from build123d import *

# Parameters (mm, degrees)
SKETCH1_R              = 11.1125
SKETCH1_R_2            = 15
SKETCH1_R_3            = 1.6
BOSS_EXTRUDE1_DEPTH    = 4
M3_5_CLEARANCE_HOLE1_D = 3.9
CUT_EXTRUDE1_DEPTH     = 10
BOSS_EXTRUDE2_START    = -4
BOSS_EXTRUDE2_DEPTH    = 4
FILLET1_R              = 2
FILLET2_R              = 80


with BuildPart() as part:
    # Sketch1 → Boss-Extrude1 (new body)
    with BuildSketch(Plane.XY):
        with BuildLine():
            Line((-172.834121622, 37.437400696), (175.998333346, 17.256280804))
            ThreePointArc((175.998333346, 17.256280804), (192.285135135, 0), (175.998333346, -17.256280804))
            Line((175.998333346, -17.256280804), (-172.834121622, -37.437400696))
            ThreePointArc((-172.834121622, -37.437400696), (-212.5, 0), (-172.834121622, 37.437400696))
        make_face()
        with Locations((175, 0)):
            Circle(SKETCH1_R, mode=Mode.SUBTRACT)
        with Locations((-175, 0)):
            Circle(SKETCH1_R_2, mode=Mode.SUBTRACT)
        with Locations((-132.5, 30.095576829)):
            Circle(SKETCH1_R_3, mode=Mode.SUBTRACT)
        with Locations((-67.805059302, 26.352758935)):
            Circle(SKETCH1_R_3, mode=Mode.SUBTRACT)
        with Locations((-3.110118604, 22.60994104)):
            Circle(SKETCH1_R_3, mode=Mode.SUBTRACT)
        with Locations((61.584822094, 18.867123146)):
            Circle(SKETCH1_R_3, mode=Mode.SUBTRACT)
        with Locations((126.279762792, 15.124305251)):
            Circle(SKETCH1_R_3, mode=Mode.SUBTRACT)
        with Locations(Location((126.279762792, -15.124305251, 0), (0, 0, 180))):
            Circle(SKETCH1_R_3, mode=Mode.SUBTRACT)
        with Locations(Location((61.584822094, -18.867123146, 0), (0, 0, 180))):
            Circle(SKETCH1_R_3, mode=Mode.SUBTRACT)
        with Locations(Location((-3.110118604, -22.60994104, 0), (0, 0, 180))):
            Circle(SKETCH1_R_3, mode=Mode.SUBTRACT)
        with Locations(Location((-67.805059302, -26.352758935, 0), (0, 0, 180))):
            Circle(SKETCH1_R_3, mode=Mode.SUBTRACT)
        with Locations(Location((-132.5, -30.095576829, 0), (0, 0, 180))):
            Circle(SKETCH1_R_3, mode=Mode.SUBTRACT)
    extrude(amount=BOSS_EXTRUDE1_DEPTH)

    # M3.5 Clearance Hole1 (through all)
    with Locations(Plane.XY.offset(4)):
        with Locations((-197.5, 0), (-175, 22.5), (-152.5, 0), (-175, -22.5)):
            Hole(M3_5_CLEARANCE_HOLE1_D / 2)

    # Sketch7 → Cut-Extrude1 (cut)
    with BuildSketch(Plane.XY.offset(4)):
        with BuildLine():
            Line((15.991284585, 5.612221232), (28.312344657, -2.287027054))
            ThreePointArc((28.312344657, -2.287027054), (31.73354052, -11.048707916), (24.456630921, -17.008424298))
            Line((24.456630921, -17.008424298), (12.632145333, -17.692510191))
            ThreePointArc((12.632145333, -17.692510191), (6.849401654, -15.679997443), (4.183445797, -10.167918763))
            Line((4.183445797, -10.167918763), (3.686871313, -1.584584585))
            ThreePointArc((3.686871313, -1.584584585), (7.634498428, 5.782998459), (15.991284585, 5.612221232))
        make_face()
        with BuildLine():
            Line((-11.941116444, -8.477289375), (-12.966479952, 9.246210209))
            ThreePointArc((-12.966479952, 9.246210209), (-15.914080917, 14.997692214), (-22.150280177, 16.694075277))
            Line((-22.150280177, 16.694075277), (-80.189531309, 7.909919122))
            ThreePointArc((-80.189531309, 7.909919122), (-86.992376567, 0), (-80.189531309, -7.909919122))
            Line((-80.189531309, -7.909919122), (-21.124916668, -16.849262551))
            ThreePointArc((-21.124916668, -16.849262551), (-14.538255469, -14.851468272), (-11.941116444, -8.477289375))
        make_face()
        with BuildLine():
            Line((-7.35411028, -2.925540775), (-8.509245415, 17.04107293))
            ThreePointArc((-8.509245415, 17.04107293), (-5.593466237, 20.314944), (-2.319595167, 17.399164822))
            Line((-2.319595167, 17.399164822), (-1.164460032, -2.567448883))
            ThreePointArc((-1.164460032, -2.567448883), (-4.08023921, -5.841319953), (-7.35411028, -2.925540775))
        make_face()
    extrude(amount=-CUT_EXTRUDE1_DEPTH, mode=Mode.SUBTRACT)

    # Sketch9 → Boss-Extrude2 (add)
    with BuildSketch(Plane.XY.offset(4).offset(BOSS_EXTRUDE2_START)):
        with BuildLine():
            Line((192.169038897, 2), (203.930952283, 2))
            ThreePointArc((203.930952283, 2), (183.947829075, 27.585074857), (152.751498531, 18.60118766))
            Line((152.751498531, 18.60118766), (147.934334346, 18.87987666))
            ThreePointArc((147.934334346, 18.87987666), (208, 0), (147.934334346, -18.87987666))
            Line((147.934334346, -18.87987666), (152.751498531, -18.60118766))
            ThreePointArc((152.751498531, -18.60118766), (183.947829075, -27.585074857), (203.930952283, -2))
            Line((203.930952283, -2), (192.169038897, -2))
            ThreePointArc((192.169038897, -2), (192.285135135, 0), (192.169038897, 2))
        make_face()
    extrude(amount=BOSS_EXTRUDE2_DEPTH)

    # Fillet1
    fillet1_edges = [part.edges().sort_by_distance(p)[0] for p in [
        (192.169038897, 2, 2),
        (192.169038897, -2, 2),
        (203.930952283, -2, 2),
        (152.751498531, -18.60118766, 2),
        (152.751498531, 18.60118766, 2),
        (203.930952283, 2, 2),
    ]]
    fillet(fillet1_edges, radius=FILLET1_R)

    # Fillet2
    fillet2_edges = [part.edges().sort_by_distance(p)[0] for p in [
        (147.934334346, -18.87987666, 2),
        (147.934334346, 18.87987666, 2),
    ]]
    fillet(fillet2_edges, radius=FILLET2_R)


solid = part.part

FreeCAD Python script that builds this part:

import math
import FreeCAD as App
import Part
import Sketcher
Q = App.Units.Quantity


def edges_at(feature, points):
    """Names of the edges that pass closest to the given points."""
    edges = feature.Shape.Edges
    near = lambda p: min(range(len(edges)), key=lambda i: edges[i].distToShape(Part.Vertex(*p))[0])
    return sorted({f"Edge{near(p) + 1}" for p in points})

doc = App.newDocument("Part")
body = doc.addObject("PartDesign::Body", "Body")

# Sketch on XY plane
sketch1 = body.newObject("Sketcher::SketchObject", "Sketch")
sketch1.AttachmentSupport = (doc.getObject("XY_Plane"), [""])
sketch1.MapMode = "FlatFace"
sketch1.addGeometry([
    Part.LineSegment(App.Vector(176, 17.3, 0), App.Vector(-172.8, 37.4, 0)),  # 0
    Part.ArcOfCircle(Part.Circle(App.Vector(-175, 0, 0), App.Vector(0, 0, 1), 37.5), math.radians(87), math.radians(273)),  # 1
    Part.LineSegment(App.Vector(-172.8, -37.4, 0), App.Vector(176, -17.3, 0)),  # 2
    Part.ArcOfCircle(Part.Circle(App.Vector(175, 0, 0), App.Vector(0, 0, 1), 17.3), math.radians(-87), math.radians(87)),  # 3
    Part.Circle(App.Vector(61.6, -18.9, 0), App.Vector(0, 0, 1), 1.6),  # 4
    Part.Circle(App.Vector(126.3, -15.1, 0), App.Vector(0, 0, 1), 1.6),  # 5
    Part.Circle(App.Vector(-67.8, -26.4, 0), App.Vector(0, 0, 1), 1.6),  # 6
    Part.Circle(App.Vector(-3.1, -22.6, 0), App.Vector(0, 0, 1), 1.6),  # 7
    Part.Circle(App.Vector(-132.5, -30.1, 0), App.Vector(0, 0, 1), 1.6),  # 8
    Part.Circle(App.Vector(175, 0, 0), App.Vector(0, 0, 1), 11.1),  # 9
    Part.Circle(App.Vector(126.3, 15.1, 0), App.Vector(0, 0, 1), 1.6),  # 10
    Part.Circle(App.Vector(61.6, 18.9, 0), App.Vector(0, 0, 1), 1.6),  # 11
    Part.Circle(App.Vector(-175, 0, 0), App.Vector(0, 0, 1), 15),  # 12
    Part.Circle(App.Vector(-3.1, 22.6, 0), App.Vector(0, 0, 1), 1.6),  # 13
    Part.Circle(App.Vector(-67.8, 26.4, 0), App.Vector(0, 0, 1), 1.6),  # 14
    Part.Circle(App.Vector(-132.5, 30.1, 0), App.Vector(0, 0, 1), 1.6),  # 15
], False)
sketch1.addConstraint([
    Sketcher.Constraint("Tangent", 0, 2, 1, 1),
    Sketcher.Constraint("Tangent", 1, 2, 2, 1),
    Sketcher.Constraint("Tangent", 2, 2, 3, 1),
    Sketcher.Constraint("Tangent", 3, 2, 0, 1),
    Sketcher.Constraint("Coincident", 9, 3, 3, 3),
    Sketcher.Constraint("Coincident", 12, 3, 1, 3),
    Sketcher.Constraint("Equal", 4, 5),
    Sketcher.Constraint("Equal", 5, 6),
    Sketcher.Constraint("Equal", 6, 7),
    Sketcher.Constraint("Equal", 7, 8),
    Sketcher.Constraint("Equal", 8, 10),
    Sketcher.Constraint("Equal", 10, 11),
    Sketcher.Constraint("Equal", 11, 13),
    Sketcher.Constraint("Equal", 13, 14),
    Sketcher.Constraint("Equal", 14, 15),
    Sketcher.Constraint("Symmetric", 1, 3, 3, 3, -1, 1),
    Sketcher.Constraint("Symmetric", 5, 3, 10, 3, -1),
    Sketcher.Constraint("Symmetric", 4, 3, 11, 3, -1),
    Sketcher.Constraint("Symmetric", 7, 3, 13, 3, -1),
    Sketcher.Constraint("Symmetric", 6, 3, 14, 3, -1),
    Sketcher.Constraint("Symmetric", 8, 3, 15, 3, -1),
    Sketcher.Constraint("PointOnObject", 1, 3, -1),
    Sketcher.Constraint("Diameter", 12, Q("30 mm")),
    Sketcher.Constraint("Diameter", 4, Q("3.2 mm")),
    Sketcher.Constraint("Radius", 1, Q("37.5 mm")),
    Sketcher.Constraint("Diameter", 9, Q("22.225 mm")),
    Sketcher.Constraint("DistanceX", 1, 3, -1, 1, Q("175 mm")),
    Sketcher.Constraint("DistanceX", 8, 3, -1, 1, Q("132.5 mm")),
    Sketcher.Constraint("Radius", 3, Q("17.285135 mm")),
    Sketcher.Constraint("DistanceY", 6, 3, 13, 3, Q("48.9627 mm")),
    Sketcher.Constraint("DistanceX", 6, 3, -1, 1, Q("67.805059 mm")),
    Sketcher.Constraint("DistanceY", 6, 3, -1, 1, Q("26.352759 mm")),
    Sketcher.Constraint("DistanceX", 7, 3, -1, 1, Q("3.110119 mm")),
    Sketcher.Constraint("DistanceX", 4, 3, 5, 3, Q("64.694941 mm")),
    Sketcher.Constraint("DistanceX", 6, 3, 4, 3, Q("129.389881 mm")),
    Sketcher.Constraint("DistanceY", 8, 3, 5, 3, Q("14.971272 mm")),
    Sketcher.Constraint("DistanceY", 5, 3, 10, 3, Q("30.248611 mm")),
    Sketcher.Constraint("DistanceY", 4, 3, 10, 3, Q("33.991428 mm")),
])
pad1 = body.newObject("PartDesign::Pad", "Pad")
pad1.Profile = sketch1
pad1.Length = 4

# Sketch on XY plane
sketch2 = body.newObject("Sketcher::SketchObject", "Sketch001")
sketch2.AttachmentSupport = (doc.getObject("XY_Plane"), [""])
sketch2.MapMode = "FlatFace"
sketch2.AttachmentOffset = App.Placement(App.Vector(0, 0, 4), App.Rotation())
sketch2.addGeometry([
    Part.Circle(App.Vector(-197.5, 0, 0), App.Vector(0, 0, 1), 1.9),
    Part.Circle(App.Vector(-175, 22.5, 0), App.Vector(0, 0, 1), 1.9),
    Part.Circle(App.Vector(-152.5, 0, 0), App.Vector(0, 0, 1), 1.9),
    Part.Circle(App.Vector(-175, -22.5, 0), App.Vector(0, 0, 1), 1.9),
], False)
sketch2.addConstraint([
    Sketcher.Constraint("Equal", 0, 1),
    Sketcher.Constraint("Equal", 1, 2),
    Sketcher.Constraint("Equal", 2, 3),
    Sketcher.Constraint("Symmetric", 1, 3, 3, 3, -1),
    Sketcher.Constraint("PointOnObject", 0, 3, -1),
    Sketcher.Constraint("PointOnObject", 2, 3, -1),
    Sketcher.Constraint("Diameter", 0, Q("3.9 mm")),
    Sketcher.Constraint("DistanceX", 1, 3, -1, 1, Q("175 mm")),
    Sketcher.Constraint("DistanceX", 0, 3, 2, 3, Q("45 mm")),
    Sketcher.Constraint("DistanceY", 3, 3, 1, 3, Q("45 mm")),
    Sketcher.Constraint("DistanceX", 0, 3, -1, 1, Q("197.5 mm")),
])
doc.recompute()
hole = body.newObject("PartDesign::Hole", "Hole")
hole.Profile = sketch2
hole.ThreadType = "None"
hole.Diameter = 3.9
hole.DepthType = "ThroughAll"

# Sketch on XY plane
sketch3 = body.newObject("Sketcher::SketchObject", "Sketch002")
sketch3.AttachmentSupport = (doc.getObject("XY_Plane"), [""])
sketch3.MapMode = "FlatFace"
sketch3.AttachmentOffset = App.Placement(App.Vector(0, 0, 4), App.Rotation())
sketch3.addGeometry([
    Part.LineSegment(App.Vector(28.3, -2.3, 0), App.Vector(16, 5.6, 0)),  # 0
    Part.ArcOfCircle(Part.Circle(App.Vector(11.7, -1.1, 0), App.Vector(0, 0, 1), 8), math.radians(57), math.radians(183)),  # 1
    Part.LineSegment(App.Vector(3.7, -1.6, 0), App.Vector(4.2, -10.2, 0)),  # 2
    Part.ArcOfCircle(Part.Circle(App.Vector(12.2, -9.7, 0), App.Vector(0, 0, 1), 8), math.radians(-177), math.radians(-87)),  # 3
    Part.LineSegment(App.Vector(12.6, -17.7, 0), App.Vector(24.5, -17, 0)),  # 4
    Part.ArcOfCircle(Part.Circle(App.Vector(24, -9, 0), App.Vector(0, 0, 1), 8), math.radians(-87), math.radians(57)),  # 5
    Part.LineSegment(App.Vector(-11.9, -8.5, 0), App.Vector(-13, 9.2, 0)),  # 6
    Part.ArcOfCircle(Part.Circle(App.Vector(-21, 8.8, 0), App.Vector(0, 0, 1), 8), math.radians(3), math.radians(99)),  # 7
    Part.LineSegment(App.Vector(-22.2, 16.7, 0), App.Vector(-80.2, 7.9, 0)),  # 8
    Part.ArcOfCircle(Part.Circle(App.Vector(-79, 0, 0), App.Vector(0, 0, 1), 8), math.radians(99), math.radians(261)),  # 9
    Part.LineSegment(App.Vector(-80.2, -7.9, 0), App.Vector(-21.1, -16.8, 0)),  # 10
    Part.ArcOfCircle(Part.Circle(App.Vector(-19.9, -8.9, 0), App.Vector(0, 0, 1), 8), math.radians(-99), math.radians(3)),  # 11
    Part.LineSegment(App.Vector(-8.5, 17, 0), App.Vector(-7.4, -2.9, 0)),  # 12
    Part.ArcOfCircle(Part.Circle(App.Vector(-4.3, -2.7, 0), App.Vector(0, 0, 1), 3.1), math.radians(-177), math.radians(3)),  # 13
    Part.LineSegment(App.Vector(-1.2, -2.6, 0), App.Vector(-2.3, 17.4, 0)),  # 14
    Part.ArcOfCircle(Part.Circle(App.Vector(-5.4, 17.2, 0), App.Vector(0, 0, 1), 3.1), math.radians(3), math.radians(183)),  # 15
], False)
sketch3.addConstraint([
    Sketcher.Constraint("Tangent", 0, 2, 1, 1),
    Sketcher.Constraint("Tangent", 1, 2, 2, 1),
    Sketcher.Constraint("Tangent", 2, 2, 3, 1),
    Sketcher.Constraint("Tangent", 3, 2, 4, 1),
    Sketcher.Constraint("Tangent", 4, 2, 5, 1),
    Sketcher.Constraint("Tangent", 5, 2, 0, 1),
    Sketcher.Constraint("Tangent", 6, 2, 7, 1),
    Sketcher.Constraint("Tangent", 7, 2, 8, 1),
    Sketcher.Constraint("Tangent", 8, 2, 9, 1),
    Sketcher.Constraint("Tangent", 9, 2, 10, 1),
    Sketcher.Constraint("Tangent", 10, 2, 11, 1),
    Sketcher.Constraint("Tangent", 11, 2, 6, 1),
    Sketcher.Constraint("Tangent", 12, 2, 13, 1),
    Sketcher.Constraint("Tangent", 13, 2, 14, 1),
    Sketcher.Constraint("Tangent", 14, 2, 15, 1),
    Sketcher.Constraint("Tangent", 15, 2, 12, 1),
    Sketcher.Constraint("Equal", 1, 3),
    Sketcher.Constraint("Equal", 3, 5),
    Sketcher.Constraint("Equal", 5, 7),
    Sketcher.Constraint("Equal", 7, 9),
    Sketcher.Constraint("Equal", 9, 11),
    Sketcher.Constraint("Equal", 13, 15),
    Sketcher.Constraint("Symmetric", 8, 2, 9, 2, -1),
    Sketcher.Constraint("Perpendicular", 2, 4),
    Sketcher.Constraint("Perpendicular", 4, 6),
    Sketcher.Constraint("Parallel", 6, 12),
    Sketcher.Constraint("Radius", 1, Q("8 mm")),
    Sketcher.Constraint("Radius", 13, Q("3.1 mm")),
    Sketcher.Constraint("Distance", 12, Q("20 mm")),
    Sketcher.Constraint("DistanceY", 5, 3, 0, 2, Q("14.634 mm")),
    Sketcher.Constraint("Distance", 0, Q("14.6358 mm")),
    Sketcher.Constraint("DistanceY", 11, 3, 7, 3, Q("17.7235 mm")),
    Sketcher.Constraint("DistanceX", 13, 3, 1, 3, Q("15.932802 mm")),
    Sketcher.Constraint("DistanceX", 2, 2, 3, 2, Q("8.4487 mm")),
    Sketcher.Constraint("DistanceX", 10, 2, 11, 2, Q("9.1838 mm")),
    Sketcher.Constraint("DistanceY", 1, 3, -1, 1, Q("1.122531 mm")),
    Sketcher.Constraint("DistanceX", -1, 1, 3, 3, Q("12.170091 mm")),
    Sketcher.Constraint("DistanceX", 11, 3, -1, 1, Q("19.927762 mm")),
    Sketcher.Constraint("DistanceY", -1, 1, 15, 3, Q("17.220119 mm")),
])
pocket1 = body.newObject("PartDesign::Pocket", "Pocket")
pocket1.Profile = sketch3
pocket1.Length = 10

# Sketch on XY plane
sketch4 = body.newObject("Sketcher::SketchObject", "Sketch003")
sketch4.AttachmentSupport = (doc.getObject("XY_Plane"), [""])
sketch4.MapMode = "FlatFace"
sketch4.addGeometry([
    Part.LineSegment(App.Vector(203.9, 2, 0), App.Vector(192.2, 2, 0)),  # 0
    Part.ArcOfCircle(Part.Circle(App.Vector(175, 0, 0), App.Vector(0, 0, 1), 17.3), math.radians(-6.64), math.radians(6.64)),  # 1
    Part.LineSegment(App.Vector(192.2, -2, 0), App.Vector(203.9, -2, 0)),  # 2
    Part.ArcOfCircle(Part.Circle(App.Vector(175, 0, 0), App.Vector(0, 0, 1), 29), math.radians(-140), math.radians(-4)),  # 3
    Part.LineSegment(App.Vector(152.8, -18.6, 0), App.Vector(147.9, -18.9, 0)),  # 4
    Part.ArcOfCircle(Part.Circle(App.Vector(175, 0, 0), App.Vector(0, 0, 1), 33), math.radians(-145), math.radians(145)),  # 5
    Part.LineSegment(App.Vector(147.9, 18.9, 0), App.Vector(152.8, 18.6, 0)),  # 6
    Part.ArcOfCircle(Part.Circle(App.Vector(175, 0, 0), App.Vector(0, 0, 1), 29), math.radians(4), math.radians(140)),  # 7
], False)
sketch4.addConstraint([
    Sketcher.Constraint("Coincident", 0, 2, 1, 2),
    Sketcher.Constraint("Coincident", 1, 1, 2, 1),
    Sketcher.Constraint("Coincident", 2, 2, 3, 2),
    Sketcher.Constraint("Coincident", 3, 1, 4, 1),
    Sketcher.Constraint("Coincident", 4, 2, 5, 1),
    Sketcher.Constraint("Coincident", 5, 2, 6, 1),
    Sketcher.Constraint("Coincident", 6, 2, 7, 2),
    Sketcher.Constraint("Coincident", 7, 1, 0, 1),
    Sketcher.Constraint("Horizontal", 0),
    Sketcher.Constraint("Horizontal", 2),
    Sketcher.Constraint("Coincident", 3, 3, 1, 3),
    Sketcher.Constraint("Coincident", 5, 3, 1, 3),
    Sketcher.Constraint("Coincident", 7, 3, 1, 3),
    Sketcher.Constraint("Equal", 3, 7),
    Sketcher.Constraint("Symmetric", 0, 2, 1, 1, -1),
    Sketcher.Constraint("Vertical", 4, 2, 5, 2),
    Sketcher.Constraint("Vertical", 3, 1, 6, 2),
    Sketcher.Constraint("Radius", 3, Q("29 mm")),
    Sketcher.Constraint("Radius", 5, Q("33 mm")),
    Sketcher.Constraint("DistanceX", -1, 1, 1, 3, Q("175 mm")),
    Sketcher.Constraint("DistanceY", -1, 1, 0, 2, Q("2 mm")),
    Sketcher.Constraint("Radius", 1, Q("17.285135 mm")),
    Sketcher.Constraint("DistanceX", -1, 1, 3, 1, Q("152.751499 mm")),
    Sketcher.Constraint("Distance", 4, Q("4.825219 mm")),
])
pad2 = body.newObject("PartDesign::Pad", "Pad001")
pad2.Profile = sketch4
pad2.Length = 4
doc.recompute()

fillet = body.newObject("PartDesign::Fillet", "Fillet")
fillet.Base = (pad2, edges_at(pad2, [
    (192.169, 2, 2),
    (192.169, -2, 2),
    (203.931, -2, 2),
    (152.751, -18.601, 2),
    (152.751, 18.601, 2),
    (203.931, 2, 2),
]))
fillet.Radius = 2
doc.recompute()

fillet2 = body.newObject("PartDesign::Fillet", "Fillet001")
fillet2.Base = (fillet, edges_at(fillet, [(147.934, -18.88, 2), (147.934, 18.88, 2)]))
fillet2.Radius = 80

doc.recompute()
